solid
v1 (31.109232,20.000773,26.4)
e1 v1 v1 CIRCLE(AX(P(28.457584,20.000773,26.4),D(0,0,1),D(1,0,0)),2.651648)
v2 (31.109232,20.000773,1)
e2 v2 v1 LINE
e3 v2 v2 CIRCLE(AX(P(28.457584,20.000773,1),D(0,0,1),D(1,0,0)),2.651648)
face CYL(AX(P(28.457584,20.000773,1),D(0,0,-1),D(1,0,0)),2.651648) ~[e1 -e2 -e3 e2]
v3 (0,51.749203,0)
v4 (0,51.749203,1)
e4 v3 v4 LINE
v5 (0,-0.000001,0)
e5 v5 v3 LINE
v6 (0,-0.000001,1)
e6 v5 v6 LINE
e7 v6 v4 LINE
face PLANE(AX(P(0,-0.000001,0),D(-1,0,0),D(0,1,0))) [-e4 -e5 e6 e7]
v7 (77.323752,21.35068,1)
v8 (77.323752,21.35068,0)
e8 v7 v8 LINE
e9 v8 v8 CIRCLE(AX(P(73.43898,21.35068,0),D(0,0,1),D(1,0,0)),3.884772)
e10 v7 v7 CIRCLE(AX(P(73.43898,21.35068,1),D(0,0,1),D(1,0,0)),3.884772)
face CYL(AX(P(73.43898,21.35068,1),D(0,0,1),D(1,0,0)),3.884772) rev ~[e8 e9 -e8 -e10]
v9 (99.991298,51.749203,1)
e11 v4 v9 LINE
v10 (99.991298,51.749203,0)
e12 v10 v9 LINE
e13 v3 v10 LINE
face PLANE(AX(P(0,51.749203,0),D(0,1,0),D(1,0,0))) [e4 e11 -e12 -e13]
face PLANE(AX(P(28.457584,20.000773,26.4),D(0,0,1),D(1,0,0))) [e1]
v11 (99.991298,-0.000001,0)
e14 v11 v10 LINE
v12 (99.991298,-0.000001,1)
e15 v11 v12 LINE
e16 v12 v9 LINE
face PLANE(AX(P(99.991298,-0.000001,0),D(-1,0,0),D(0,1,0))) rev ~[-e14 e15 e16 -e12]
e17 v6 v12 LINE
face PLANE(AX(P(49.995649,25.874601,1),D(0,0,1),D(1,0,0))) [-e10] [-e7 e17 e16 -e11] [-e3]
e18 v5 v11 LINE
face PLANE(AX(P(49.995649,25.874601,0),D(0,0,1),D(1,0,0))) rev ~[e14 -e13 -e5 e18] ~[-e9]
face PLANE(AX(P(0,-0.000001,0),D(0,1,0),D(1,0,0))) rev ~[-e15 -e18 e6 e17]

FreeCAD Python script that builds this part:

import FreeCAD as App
import Part
import Sketcher
Q = App.Units.Quantity


def add_polygon(sketch, points):
    """Adds a closed chain of lines whose ends are joined by coincident constraints."""
    first, n = sketch.GeometryCount, len(points)
    for a, b in zip(points, points[1:] + points[:1]):
        sketch.addGeometry(Part.LineSegment(App.Vector(*a, 0), App.Vector(*b, 0)), False)
    for i in range(n):
        sketch.addConstraint(Sketcher.Constraint("Coincident", first + i, 2, first + (i + 1) % n, 1))

doc = App.newDocument("Part")
body = doc.addObject("PartDesign::Body", "Body")

# Sketch on XY plane
sketch1 = body.newObject("Sketcher::SketchObject", "Sketch")
sketch1.AttachmentSupport = (doc.getObject("XY_Plane"), [""])
sketch1.MapMode = "FlatFace"
add_polygon(sketch1, [(0, 52), (0, 0), (100, 0), (100, 52)])  # lines 0-3
sketch1.addConstraint([
    Sketcher.Constraint("Vertical", 0),
    Sketcher.Constraint("Horizontal", 1),
    Sketcher.Constraint("Vertical", 2),
    Sketcher.Constraint("Horizontal", 3),
    Sketcher.Constraint("Coincident", 0, 2, -1, 1),
    Sketcher.Constraint("DistanceX", 1, 1, 1, 2, Q("99.991299 mm")),
    Sketcher.Constraint("DistanceY", 0, 2, 0, 1, Q("51.749203 mm")),
])
pad1 = body.newObject("PartDesign::Pad", "Pad")
pad1.Profile = sketch1
pad1.Length = 1

# Sketch on XY plane
sketch2 = body.newObject("Sketcher::SketchObject", "Sketch001")
sketch2.AttachmentSupport = (doc.getObject("XY_Plane"), [""])
sketch2.MapMode = "FlatFace"
sketch2.AttachmentOffset = App.Placement(App.Vector(0, 0, 1), App.Rotation())
sketch2.addGeometry(Part.Circle(App.Vector(73.4, 21.4, 0), App.Vector(0, 0, 1), 3.9), False)
sketch2.addConstraint([
    Sketcher.Constraint("Diameter", 0, Q("7.769544 mm")),
    Sketcher.Constraint("DistanceX", -1, 1, 0, 3, Q("73.43898 mm")),
    Sketcher.Constraint("DistanceY", -1, 1, 0, 3, Q("21.35068 mm")),
])
pocket1 = body.newObject("PartDesign::Pocket", "Pocket")
pocket1.Profile = sketch2
pocket1.Type = "ThroughAll"

# Sketch on XY plane
sketch3 = body.newObject("Sketcher::SketchObject", "Sketch002")
sketch3.AttachmentSupport = (doc.getObject("XY_Plane"), [""])
sketch3.MapMode = "FlatFace"
sketch3.AttachmentOffset = App.Placement(App.Vector(0, 0, 1), App.Rotation())
sketch3.addGeometry(Part.Circle(App.Vector(28.5, 20, 0), App.Vector(0, 0, 1), 2.7), False)
sketch3.addConstraint([
    Sketcher.Constraint("Diameter", 0, Q("5.303296 mm")),
    Sketcher.Constraint("DistanceX", -1, 1, 0, 3, Q("28.457584 mm")),
    Sketcher.Constraint("DistanceY", -1, 1, 0, 3, Q("20.000773 mm")),
])
pad2 = body.newObject("PartDesign::Pad", "Pad001")
pad2.Profile = sketch3
pad2.Length = 25.4

doc.recompute()
